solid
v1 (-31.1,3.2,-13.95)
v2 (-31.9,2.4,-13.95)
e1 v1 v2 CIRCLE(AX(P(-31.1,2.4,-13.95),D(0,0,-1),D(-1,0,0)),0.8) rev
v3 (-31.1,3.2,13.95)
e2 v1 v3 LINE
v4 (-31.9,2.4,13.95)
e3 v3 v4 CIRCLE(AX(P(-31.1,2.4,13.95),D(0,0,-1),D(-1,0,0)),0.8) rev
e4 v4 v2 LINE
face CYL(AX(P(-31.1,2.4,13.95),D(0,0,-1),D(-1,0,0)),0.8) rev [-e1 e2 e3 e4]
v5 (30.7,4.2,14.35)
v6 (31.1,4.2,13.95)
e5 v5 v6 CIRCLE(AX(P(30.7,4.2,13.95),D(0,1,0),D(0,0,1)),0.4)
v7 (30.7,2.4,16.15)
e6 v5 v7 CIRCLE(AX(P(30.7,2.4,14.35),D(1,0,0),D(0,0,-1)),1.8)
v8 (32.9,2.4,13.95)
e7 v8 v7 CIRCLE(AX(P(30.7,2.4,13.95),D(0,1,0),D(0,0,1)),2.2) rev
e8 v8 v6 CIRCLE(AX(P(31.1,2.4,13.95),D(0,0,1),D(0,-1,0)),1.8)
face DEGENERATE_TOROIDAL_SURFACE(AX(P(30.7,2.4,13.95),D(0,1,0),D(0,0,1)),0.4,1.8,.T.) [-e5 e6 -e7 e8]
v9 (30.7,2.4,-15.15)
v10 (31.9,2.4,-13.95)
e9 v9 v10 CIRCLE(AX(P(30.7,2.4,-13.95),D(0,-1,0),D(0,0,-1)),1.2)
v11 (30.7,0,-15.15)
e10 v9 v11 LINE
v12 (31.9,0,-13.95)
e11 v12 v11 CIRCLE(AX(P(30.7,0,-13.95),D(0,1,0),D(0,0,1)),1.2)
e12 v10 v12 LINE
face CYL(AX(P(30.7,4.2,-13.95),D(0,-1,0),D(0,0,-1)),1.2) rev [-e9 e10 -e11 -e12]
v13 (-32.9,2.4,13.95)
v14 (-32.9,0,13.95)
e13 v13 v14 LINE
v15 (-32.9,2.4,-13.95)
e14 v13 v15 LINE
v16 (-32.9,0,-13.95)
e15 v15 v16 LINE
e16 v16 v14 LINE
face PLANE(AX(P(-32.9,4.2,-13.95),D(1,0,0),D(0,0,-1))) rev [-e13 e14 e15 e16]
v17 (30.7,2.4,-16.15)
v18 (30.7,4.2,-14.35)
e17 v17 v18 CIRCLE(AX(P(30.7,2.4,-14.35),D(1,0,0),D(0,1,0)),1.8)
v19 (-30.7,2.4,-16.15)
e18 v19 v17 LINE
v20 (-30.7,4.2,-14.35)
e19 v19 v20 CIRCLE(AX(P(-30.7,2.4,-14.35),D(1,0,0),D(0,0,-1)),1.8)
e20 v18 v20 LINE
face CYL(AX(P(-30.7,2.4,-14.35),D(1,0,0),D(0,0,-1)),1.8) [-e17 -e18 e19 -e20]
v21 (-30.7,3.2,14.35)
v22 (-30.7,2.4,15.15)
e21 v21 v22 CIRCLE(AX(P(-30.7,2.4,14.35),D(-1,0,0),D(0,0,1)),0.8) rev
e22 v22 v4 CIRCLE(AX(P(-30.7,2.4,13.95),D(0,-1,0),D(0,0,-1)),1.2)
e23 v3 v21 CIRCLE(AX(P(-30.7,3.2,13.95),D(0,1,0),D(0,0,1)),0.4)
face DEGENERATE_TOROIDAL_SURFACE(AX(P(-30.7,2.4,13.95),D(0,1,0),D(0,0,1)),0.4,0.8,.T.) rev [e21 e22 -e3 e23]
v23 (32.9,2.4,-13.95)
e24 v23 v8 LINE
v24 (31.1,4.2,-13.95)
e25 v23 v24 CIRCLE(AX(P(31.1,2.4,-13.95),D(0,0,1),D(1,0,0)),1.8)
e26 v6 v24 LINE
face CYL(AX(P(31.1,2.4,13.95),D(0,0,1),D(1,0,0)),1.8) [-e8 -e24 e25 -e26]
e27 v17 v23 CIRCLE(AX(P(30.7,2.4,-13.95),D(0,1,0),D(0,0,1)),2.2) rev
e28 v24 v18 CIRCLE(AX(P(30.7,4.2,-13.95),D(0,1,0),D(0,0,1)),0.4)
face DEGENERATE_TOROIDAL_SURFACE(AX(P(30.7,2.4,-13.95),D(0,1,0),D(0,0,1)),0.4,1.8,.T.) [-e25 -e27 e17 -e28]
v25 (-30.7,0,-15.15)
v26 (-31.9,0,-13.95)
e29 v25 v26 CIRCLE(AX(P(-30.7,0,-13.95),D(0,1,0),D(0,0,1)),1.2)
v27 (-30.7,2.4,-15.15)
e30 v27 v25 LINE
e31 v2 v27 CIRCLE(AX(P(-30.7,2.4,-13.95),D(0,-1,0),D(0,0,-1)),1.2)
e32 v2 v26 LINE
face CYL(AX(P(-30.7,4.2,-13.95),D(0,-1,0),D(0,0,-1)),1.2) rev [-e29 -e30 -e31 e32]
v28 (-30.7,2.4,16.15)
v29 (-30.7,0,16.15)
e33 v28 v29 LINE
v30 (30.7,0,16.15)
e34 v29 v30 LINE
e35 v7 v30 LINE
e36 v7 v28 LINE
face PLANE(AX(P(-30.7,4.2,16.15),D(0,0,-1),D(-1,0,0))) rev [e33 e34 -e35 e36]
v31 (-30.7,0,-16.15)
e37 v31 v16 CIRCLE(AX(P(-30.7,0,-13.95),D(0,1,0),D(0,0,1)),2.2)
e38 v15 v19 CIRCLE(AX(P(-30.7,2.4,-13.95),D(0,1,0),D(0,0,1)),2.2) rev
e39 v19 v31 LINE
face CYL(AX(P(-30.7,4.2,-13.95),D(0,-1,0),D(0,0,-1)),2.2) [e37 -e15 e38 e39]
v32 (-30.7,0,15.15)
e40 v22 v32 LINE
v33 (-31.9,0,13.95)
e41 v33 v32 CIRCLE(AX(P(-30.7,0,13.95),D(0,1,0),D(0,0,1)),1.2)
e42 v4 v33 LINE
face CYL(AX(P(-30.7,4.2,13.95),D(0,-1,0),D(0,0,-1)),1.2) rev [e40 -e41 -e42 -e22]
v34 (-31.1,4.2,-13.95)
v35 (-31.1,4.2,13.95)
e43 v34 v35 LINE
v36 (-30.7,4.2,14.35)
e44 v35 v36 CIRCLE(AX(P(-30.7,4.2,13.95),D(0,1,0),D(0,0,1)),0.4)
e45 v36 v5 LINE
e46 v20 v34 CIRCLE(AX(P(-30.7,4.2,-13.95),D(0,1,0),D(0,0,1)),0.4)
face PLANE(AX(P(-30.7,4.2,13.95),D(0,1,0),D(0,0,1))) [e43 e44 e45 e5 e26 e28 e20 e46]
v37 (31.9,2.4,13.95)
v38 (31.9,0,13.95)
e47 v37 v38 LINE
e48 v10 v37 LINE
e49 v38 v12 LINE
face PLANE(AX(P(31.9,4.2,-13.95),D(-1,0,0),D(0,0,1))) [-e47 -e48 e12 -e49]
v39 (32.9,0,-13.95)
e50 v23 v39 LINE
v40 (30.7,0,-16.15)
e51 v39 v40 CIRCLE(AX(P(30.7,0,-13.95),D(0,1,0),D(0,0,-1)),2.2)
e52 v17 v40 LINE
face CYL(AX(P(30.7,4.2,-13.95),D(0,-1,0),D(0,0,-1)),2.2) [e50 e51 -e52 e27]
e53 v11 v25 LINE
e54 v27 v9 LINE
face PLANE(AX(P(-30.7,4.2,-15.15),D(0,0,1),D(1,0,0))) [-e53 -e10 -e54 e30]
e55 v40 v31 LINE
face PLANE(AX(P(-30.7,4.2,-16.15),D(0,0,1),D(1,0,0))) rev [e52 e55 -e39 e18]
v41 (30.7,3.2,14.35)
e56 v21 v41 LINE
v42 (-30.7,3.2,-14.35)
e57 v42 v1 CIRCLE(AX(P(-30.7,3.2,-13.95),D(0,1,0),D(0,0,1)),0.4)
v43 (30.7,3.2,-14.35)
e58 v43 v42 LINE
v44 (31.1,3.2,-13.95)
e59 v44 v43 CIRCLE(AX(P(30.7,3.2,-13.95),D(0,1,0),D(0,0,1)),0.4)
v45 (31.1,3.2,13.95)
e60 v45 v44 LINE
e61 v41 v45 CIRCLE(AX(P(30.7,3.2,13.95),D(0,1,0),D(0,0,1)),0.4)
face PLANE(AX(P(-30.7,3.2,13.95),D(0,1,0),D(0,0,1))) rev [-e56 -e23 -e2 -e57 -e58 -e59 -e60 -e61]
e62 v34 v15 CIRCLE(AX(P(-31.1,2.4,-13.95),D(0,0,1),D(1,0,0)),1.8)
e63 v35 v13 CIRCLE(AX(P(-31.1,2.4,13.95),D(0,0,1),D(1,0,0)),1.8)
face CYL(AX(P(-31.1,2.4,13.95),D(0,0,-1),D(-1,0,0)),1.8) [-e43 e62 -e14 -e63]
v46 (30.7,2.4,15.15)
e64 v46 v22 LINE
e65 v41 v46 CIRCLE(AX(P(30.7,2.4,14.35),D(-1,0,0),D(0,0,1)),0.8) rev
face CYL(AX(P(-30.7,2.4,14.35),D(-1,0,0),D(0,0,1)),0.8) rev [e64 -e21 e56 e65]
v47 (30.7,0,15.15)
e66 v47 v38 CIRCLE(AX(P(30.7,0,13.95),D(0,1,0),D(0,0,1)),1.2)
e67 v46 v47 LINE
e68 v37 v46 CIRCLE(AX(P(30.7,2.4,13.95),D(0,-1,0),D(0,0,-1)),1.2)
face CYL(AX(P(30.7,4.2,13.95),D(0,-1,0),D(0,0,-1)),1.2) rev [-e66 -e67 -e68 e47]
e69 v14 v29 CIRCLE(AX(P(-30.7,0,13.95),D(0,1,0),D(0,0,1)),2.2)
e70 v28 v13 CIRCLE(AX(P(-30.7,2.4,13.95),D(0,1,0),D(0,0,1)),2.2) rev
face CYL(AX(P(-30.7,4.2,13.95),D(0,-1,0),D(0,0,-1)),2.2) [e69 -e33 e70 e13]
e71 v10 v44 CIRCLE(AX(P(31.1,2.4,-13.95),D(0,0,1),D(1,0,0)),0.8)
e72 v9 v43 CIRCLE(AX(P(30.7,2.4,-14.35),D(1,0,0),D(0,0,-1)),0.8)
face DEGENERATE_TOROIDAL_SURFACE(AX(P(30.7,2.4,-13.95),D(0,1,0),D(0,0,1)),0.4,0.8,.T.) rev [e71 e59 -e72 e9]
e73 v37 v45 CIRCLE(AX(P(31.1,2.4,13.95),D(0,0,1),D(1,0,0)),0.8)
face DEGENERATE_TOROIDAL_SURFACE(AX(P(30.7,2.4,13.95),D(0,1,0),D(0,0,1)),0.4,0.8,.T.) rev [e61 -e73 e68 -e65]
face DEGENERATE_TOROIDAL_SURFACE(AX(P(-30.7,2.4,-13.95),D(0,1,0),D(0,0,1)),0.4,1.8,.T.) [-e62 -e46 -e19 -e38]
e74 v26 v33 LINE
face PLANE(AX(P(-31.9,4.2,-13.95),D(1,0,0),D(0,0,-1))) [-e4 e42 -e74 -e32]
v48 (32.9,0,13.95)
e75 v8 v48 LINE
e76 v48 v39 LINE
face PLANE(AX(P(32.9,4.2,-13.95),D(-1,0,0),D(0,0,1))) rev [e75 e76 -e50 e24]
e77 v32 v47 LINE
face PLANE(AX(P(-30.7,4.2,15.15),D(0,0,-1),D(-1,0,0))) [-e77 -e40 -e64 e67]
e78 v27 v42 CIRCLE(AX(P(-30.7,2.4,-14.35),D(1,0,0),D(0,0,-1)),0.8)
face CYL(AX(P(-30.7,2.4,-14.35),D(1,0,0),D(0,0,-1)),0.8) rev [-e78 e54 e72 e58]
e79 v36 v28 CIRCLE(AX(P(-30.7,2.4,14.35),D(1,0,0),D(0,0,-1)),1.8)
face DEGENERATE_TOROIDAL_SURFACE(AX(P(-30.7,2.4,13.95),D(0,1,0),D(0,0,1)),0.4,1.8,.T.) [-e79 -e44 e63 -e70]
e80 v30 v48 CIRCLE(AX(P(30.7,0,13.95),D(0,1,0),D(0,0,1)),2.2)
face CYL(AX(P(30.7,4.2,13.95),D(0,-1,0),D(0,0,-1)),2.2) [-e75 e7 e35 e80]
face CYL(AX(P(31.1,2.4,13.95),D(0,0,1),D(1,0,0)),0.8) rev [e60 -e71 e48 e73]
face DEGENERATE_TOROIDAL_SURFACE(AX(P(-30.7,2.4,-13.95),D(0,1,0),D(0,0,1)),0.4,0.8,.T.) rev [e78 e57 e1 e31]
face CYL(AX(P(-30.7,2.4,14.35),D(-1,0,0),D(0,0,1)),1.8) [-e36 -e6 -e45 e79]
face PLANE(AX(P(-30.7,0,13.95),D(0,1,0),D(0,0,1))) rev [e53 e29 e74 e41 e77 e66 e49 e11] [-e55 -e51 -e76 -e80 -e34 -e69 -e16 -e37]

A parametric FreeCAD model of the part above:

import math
import FreeCAD as App
import Part
import Sketcher

V = App.Vector
Q = App.Units.Quantity


def edges_at(feature, points):
    """Names of the edges that pass closest to the given points."""
    edges = feature.Shape.Edges
    near = lambda p: min(range(len(edges)), key=lambda i: edges[i].distToShape(Part.Vertex(*p))[0])
    return sorted({f"Edge{near(p) + 1}" for p in points})


def faces_at(feature, points):
    """Names of the faces that lie closest to the given points."""
    faces = feature.Shape.Faces
    near = lambda p: min(range(len(faces)), key=lambda i: faces[i].distToShape(Part.Vertex(*p))[0])
    return sorted({f"Face{near(p) + 1}" for p in points})

doc = App.newDocument("Part")
body = doc.addObject("PartDesign::Body", "Body")

sketch1 = body.newObject("Sketcher::SketchObject", "Sketch")
sketch1.AttachmentSupport = (doc.getObject("XZ_Plane"), [""])
sketch1.MapMode = "FlatFace"
sketch1.addGeometry([
    Part.LineSegment(V(30.7, -16.1, 0), V(-30.7, -16.1, 0)),
    Part.ArcOfCircle(Part.Circle(V(-30.7, -14, 0), V(0, 0, 1), 2.2), math.radians(180), math.radians(270)),
    Part.LineSegment(V(-32.9, -13.9, 0), V(-32.9, 13.9, 0)),
    Part.ArcOfCircle(Part.Circle(V(-30.7, 14, 0), V(0, 0, 1), 2.2), math.radians(90), math.radians(180)),
    Part.LineSegment(V(-30.7, 16.1, 0), V(30.7, 16.1, 0)),
    Part.ArcOfCircle(Part.Circle(V(30.7, 14, 0), V(0, 0, 1), 2.2), math.radians(0), math.radians(90)),
    Part.LineSegment(V(32.9, 13.9, 0), V(32.9, -13.9, 0)),
    Part.ArcOfCircle(Part.Circle(V(30.7, -14, 0), V(0, 0, 1), 2.2), math.radians(-90), math.radians(0)),
], False)
sketch1.addConstraint([
    Sketcher.Constraint("Tangent", 0, 2, 1, 2),
    Sketcher.Constraint("Tangent", 1, 1, 2, 1),
    Sketcher.Constraint("Tangent", 2, 2, 3, 2),
    Sketcher.Constraint("Tangent", 3, 1, 4, 1),
    Sketcher.Constraint("Tangent", 4, 2, 5, 2),
    Sketcher.Constraint("Tangent", 5, 1, 6, 1),
    Sketcher.Constraint("Tangent", 6, 2, 7, 2),
    Sketcher.Constraint("Tangent", 7, 1, 0, 1),
    Sketcher.Constraint("Horizontal", 0),
    Sketcher.Constraint("Vertical", 2),
    Sketcher.Constraint("Horizontal", 4),
    Sketcher.Constraint("Vertical", 6),
    Sketcher.Constraint("Equal", 1, 3),
    Sketcher.Constraint("Equal", 3, 5),
    Sketcher.Constraint("Equal", 5, 7),
    Sketcher.Constraint("Symmetric", 1, 3, 5, 3, -1, 1),
    Sketcher.Constraint("Radius", 1, Q("2.2 mm")),
    Sketcher.Constraint("DistanceX", 0, 2, 0, 1, Q("61.4 mm")),
    Sketcher.Constraint("DistanceY", 2, 1, 2, 2, Q("27.9 mm")),
])
pad1 = body.newObject("PartDesign::Pad", "Pad")
pad1.Profile = sketch1
pad1.Length = 4.2
pad1.Reversed = True
doc.recompute()

fillet = body.newObject("PartDesign::Fillet", "Fillet")
fillet.Base = (pad1, edges_at(pad1, [
    (32.256, 4.2, 15.506),
    (32.9, 4.2, 0),
    (32.256, 4.2, -15.506),
    (0, 4.2, -16.15),
    (-32.256, 4.2, -15.506),
    (-32.9, 4.2, 0),
    (-32.256, 4.2, 15.506),
    (0, 4.2, 16.15),
]))
fillet.Radius = 1.8
doc.recompute()

thickness = body.newObject("PartDesign::Thickness", "Thickness")
thickness.Base = (fillet, faces_at(fillet, [(0, 0, 0)]))
thickness.Value = 1
thickness.Reversed = True
thickness.Join = "Intersection"

doc.recompute()
